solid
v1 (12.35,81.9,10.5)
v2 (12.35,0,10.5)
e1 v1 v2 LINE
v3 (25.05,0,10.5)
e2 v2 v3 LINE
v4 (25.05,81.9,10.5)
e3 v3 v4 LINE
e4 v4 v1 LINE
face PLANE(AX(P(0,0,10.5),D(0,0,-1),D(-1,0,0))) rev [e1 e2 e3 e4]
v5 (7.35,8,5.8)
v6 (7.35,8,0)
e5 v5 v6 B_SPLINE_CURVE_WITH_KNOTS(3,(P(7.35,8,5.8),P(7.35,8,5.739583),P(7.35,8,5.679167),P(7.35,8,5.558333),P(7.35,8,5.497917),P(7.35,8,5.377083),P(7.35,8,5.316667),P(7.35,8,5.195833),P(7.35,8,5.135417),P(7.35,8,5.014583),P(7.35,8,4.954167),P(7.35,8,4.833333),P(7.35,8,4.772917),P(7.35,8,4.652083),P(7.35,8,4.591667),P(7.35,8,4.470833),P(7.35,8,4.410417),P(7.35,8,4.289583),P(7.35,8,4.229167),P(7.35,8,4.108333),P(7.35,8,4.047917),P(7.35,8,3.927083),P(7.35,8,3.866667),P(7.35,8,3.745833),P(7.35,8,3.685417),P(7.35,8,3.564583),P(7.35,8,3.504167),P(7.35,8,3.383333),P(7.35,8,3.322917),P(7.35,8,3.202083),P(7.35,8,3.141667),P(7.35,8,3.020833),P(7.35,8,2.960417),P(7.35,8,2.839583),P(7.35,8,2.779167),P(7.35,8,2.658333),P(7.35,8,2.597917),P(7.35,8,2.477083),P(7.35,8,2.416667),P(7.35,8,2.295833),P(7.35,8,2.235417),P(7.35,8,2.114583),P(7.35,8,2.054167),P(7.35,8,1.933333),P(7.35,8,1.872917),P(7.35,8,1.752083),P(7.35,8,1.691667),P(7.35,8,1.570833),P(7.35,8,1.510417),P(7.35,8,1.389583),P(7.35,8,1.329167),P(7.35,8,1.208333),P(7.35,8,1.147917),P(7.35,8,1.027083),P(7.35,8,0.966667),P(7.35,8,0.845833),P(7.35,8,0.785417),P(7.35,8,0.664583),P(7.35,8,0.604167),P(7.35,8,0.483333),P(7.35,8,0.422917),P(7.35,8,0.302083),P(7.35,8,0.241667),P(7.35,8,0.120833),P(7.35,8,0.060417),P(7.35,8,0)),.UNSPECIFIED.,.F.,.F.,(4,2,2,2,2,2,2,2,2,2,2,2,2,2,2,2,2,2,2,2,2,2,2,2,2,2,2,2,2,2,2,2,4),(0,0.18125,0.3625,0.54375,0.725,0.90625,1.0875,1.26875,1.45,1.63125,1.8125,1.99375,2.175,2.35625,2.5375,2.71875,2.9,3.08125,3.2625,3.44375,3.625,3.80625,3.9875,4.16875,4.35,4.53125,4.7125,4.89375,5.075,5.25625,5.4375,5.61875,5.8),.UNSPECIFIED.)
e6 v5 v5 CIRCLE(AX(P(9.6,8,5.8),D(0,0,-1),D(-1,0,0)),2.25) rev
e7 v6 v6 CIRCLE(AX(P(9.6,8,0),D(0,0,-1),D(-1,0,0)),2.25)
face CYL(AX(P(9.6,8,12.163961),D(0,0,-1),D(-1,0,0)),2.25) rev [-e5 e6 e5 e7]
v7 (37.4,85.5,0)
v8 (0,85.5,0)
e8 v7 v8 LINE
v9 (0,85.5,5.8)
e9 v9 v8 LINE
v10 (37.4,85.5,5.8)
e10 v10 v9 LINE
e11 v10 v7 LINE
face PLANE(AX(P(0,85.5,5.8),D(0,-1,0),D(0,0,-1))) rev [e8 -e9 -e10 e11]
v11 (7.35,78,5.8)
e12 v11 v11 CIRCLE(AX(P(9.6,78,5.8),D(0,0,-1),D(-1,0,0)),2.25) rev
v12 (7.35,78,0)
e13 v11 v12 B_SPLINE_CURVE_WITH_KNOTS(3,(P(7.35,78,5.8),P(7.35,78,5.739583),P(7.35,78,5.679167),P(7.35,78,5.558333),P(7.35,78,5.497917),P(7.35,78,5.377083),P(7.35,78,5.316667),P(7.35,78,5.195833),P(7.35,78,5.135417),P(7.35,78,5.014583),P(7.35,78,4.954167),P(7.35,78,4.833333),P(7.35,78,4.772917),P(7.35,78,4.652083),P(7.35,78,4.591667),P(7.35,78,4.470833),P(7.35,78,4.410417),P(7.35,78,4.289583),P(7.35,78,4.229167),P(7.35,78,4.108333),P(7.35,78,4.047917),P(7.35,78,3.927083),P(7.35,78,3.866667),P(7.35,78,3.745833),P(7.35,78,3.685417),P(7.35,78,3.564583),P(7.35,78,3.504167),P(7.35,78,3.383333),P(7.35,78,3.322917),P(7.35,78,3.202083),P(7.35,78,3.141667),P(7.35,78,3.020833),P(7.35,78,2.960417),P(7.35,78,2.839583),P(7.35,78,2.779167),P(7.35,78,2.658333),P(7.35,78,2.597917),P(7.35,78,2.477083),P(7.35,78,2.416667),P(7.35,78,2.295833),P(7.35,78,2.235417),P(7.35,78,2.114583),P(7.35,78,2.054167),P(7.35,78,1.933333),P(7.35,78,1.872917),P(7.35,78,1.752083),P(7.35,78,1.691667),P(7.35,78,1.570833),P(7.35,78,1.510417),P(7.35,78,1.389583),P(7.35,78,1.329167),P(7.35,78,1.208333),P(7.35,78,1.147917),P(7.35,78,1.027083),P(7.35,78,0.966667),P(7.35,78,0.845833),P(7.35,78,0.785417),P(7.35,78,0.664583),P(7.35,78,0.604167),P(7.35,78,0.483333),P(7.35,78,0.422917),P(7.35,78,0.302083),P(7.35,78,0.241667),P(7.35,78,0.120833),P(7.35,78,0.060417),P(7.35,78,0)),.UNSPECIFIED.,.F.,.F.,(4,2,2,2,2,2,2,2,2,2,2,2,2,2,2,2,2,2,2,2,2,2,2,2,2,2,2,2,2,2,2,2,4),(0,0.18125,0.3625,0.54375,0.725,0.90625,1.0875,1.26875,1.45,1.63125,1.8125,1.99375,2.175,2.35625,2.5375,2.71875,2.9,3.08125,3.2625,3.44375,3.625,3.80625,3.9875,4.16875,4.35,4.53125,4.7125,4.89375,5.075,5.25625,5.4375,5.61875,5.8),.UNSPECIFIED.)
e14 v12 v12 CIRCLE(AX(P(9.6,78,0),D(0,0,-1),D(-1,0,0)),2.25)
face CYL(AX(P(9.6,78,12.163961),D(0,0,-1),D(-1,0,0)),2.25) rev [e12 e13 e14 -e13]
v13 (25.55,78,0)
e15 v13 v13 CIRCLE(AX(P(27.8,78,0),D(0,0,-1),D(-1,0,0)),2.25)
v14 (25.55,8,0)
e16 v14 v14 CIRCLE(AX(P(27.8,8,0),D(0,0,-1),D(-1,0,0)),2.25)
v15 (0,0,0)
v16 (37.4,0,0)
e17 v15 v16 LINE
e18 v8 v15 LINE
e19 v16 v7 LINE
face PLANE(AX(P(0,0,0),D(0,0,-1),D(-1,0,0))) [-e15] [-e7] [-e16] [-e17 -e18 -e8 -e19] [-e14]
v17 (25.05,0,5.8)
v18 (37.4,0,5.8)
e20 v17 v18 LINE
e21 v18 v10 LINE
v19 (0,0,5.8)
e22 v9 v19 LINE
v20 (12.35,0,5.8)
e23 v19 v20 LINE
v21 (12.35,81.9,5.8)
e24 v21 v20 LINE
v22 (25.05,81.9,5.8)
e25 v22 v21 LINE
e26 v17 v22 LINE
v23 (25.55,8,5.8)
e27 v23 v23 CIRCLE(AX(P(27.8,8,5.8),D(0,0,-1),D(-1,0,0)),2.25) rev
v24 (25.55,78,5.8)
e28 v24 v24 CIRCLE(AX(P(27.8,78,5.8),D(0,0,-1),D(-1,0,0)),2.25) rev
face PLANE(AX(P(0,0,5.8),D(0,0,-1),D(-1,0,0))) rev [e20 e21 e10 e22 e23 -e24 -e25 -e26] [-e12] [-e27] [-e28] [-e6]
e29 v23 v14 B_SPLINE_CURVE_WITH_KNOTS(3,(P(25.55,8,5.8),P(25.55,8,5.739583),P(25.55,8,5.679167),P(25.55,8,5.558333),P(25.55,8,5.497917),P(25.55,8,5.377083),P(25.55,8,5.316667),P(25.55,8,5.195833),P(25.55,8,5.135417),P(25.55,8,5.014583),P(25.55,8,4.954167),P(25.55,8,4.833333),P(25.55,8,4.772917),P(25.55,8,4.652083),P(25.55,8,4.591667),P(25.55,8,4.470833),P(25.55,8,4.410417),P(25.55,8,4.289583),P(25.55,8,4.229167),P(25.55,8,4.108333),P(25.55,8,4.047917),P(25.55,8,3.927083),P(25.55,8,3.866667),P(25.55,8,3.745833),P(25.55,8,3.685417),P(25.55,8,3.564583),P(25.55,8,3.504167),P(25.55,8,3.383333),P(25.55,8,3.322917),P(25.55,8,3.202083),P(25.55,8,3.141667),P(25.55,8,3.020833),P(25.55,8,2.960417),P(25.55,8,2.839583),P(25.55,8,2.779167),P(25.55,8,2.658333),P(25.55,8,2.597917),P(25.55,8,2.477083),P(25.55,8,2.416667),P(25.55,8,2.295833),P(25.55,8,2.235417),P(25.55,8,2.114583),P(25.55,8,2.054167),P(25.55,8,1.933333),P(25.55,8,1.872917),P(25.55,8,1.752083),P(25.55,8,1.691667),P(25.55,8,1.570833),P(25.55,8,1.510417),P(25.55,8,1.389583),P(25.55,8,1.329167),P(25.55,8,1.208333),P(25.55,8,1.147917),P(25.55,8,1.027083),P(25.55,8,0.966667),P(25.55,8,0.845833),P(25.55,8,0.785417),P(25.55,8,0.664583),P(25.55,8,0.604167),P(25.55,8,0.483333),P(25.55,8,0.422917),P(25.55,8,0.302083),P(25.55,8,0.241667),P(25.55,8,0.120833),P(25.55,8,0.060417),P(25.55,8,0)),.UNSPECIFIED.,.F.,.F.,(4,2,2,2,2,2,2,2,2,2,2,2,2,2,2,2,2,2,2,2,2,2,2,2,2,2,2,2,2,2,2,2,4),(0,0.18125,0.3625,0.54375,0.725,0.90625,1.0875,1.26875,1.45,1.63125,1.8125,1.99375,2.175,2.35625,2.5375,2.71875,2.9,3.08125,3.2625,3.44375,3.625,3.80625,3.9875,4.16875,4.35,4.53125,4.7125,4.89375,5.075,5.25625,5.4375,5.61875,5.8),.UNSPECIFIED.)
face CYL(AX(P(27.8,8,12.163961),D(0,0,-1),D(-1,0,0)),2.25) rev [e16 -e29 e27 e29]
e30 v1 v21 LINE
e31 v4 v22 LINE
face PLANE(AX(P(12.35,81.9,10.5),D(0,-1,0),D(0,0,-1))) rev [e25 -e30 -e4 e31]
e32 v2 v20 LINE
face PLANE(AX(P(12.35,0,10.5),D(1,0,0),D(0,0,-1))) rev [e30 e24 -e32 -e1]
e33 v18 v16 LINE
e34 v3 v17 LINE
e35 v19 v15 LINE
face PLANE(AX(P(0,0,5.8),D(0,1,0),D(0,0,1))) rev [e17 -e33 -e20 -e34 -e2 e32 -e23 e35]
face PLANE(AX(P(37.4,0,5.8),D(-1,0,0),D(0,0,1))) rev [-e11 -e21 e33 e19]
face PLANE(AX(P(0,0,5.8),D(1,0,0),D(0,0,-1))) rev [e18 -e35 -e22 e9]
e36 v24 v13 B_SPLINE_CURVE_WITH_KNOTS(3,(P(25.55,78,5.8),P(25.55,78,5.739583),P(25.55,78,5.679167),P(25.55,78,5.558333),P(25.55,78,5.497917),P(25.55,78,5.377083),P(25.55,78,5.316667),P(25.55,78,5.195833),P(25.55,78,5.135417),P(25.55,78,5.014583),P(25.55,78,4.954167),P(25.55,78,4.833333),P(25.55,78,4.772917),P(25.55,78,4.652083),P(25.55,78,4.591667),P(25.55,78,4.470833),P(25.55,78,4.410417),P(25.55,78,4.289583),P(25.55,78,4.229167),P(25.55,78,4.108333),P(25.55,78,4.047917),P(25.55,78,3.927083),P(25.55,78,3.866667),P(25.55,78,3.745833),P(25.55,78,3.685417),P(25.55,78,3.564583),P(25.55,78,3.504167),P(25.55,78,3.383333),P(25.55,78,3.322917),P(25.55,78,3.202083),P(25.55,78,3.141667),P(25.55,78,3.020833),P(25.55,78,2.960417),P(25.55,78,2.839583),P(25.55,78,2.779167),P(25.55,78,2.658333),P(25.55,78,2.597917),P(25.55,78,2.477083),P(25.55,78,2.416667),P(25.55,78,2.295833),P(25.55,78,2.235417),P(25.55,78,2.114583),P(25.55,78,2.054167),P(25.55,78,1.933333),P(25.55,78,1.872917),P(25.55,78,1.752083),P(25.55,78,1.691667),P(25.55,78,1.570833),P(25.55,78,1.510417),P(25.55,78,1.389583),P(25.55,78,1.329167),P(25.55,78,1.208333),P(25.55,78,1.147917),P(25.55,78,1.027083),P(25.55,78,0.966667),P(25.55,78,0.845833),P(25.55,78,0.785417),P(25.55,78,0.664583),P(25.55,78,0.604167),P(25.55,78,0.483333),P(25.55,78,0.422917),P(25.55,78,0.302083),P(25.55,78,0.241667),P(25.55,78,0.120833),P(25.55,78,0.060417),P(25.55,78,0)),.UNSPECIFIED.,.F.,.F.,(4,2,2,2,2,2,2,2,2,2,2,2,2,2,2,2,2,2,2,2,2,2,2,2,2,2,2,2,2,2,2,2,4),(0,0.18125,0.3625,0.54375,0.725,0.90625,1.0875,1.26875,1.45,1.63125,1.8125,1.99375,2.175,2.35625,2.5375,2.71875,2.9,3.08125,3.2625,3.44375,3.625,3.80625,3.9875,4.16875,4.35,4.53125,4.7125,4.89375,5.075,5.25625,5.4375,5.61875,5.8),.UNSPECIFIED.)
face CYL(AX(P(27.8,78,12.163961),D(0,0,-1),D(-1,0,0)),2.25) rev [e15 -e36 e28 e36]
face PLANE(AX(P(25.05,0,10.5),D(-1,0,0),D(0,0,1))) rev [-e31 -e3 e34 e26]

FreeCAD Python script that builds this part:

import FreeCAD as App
import Part
import Sketcher
from FreeCAD import Vector
Q = App.Units.Quantity


def add_polygon(sketch, points):
    """Adds a closed chain of lines whose ends are joined by coincident constraints."""
    first, n = sketch.GeometryCount, len(points)
    for a, b in zip(points, points[1:] + points[:1]):
        sketch.addGeometry(Part.LineSegment(App.Vector(*a, 0), App.Vector(*b, 0)), False)
    for i in range(n):
        sketch.addConstraint(Sketcher.Constraint("Coincident", first + i, 2, first + (i + 1) % n, 1))

doc = App.newDocument("Part")
params = doc.addObject("Spreadsheet::Sheet", "Params")
for row, (alias, value) in enumerate([
    ("sketch1_width", "37.4 mm"),
    ("sketch1_height", "85.5 mm"),
    ("pad1_length", "5.8 mm"),
    ("sketch2_width", "12.7 mm"),
    ("sketch2_height", "81.9 mm"),
    ("pad2_length", "4.7 mm"),
    ("sketch3_diameter", "4.5 mm"),
    ("pocket1_length", "5.8 mm"),
], start=1):
    params.set(f"A{row}", alias)
    params.set(f"B{row}", "=" + value)
    params.setAlias(f"B{row}", alias)

body = doc.addObject("PartDesign::Body", "Body")

# Sketch on XY plane
sketch1 = body.newObject("Sketcher::SketchObject", "Sketch")
sketch1.AttachmentSupport = (doc.getObject("XY_Plane"), [""])
sketch1.MapMode = "FlatFace"
add_polygon(sketch1, [(0, 86), (0, 0), (37, 0), (37, 86)])  # lines 0-3
sketch1.addConstraint(Sketcher.Constraint("Vertical", 0))
sketch1.addConstraint(Sketcher.Constraint("Horizontal", 1))
sketch1.addConstraint(Sketcher.Constraint("Vertical", 2))
sketch1.addConstraint(Sketcher.Constraint("Horizontal", 3))
sketch1.addConstraint(Sketcher.Constraint("Coincident", 0, 2, -1, 1))
sketch1.addConstraint(Sketcher.Constraint("DistanceX", 1, 1, 1, 2, Q("37.4 mm")))
sketch1.addConstraint(Sketcher.Constraint("DistanceY", 0, 2, 0, 1, Q("85.5 mm")))
sketch1.setExpression("Constraints[9]", "Params.sketch1_width")
sketch1.setExpression("Constraints[10]", "Params.sketch1_height")
pad1 = body.newObject("PartDesign::Pad", "Pad")
pad1.Profile = sketch1
pad1.setExpression("Length", "Params.pad1_length")

# Sketch on XY plane
sketch2 = body.newObject("Sketcher::SketchObject", "Sketch001")
sketch2.AttachmentSupport = (doc.getObject("XY_Plane"), [""])
sketch2.MapMode = "FlatFace"
sketch2.AttachmentOffset = App.Placement(Vector(0, 0, 5.8), App.Rotation())
add_polygon(sketch2, [(12, 82), (12, 0), (25, 0), (25, 82)])  # lines 0-3
sketch2.addConstraint(Sketcher.Constraint("Vertical", 0))
sketch2.addConstraint(Sketcher.Constraint("Horizontal", 1))
sketch2.addConstraint(Sketcher.Constraint("Vertical", 2))
sketch2.addConstraint(Sketcher.Constraint("Horizontal", 3))
sketch2.addConstraint(Sketcher.Constraint("PointOnObject", 0, 2, -1))
sketch2.addConstraint(Sketcher.Constraint("DistanceX", 1, 1, 1, 2, Q("12.7 mm")))
sketch2.addConstraint(Sketcher.Constraint("DistanceY", 0, 2, 0, 1, Q("81.9 mm")))
sketch2.addConstraint(Sketcher.Constraint("DistanceX", -1, 1, 0, 2, Q("12.35 mm")))
sketch2.setExpression("Constraints[9]", "Params.sketch2_width")
sketch2.setExpression("Constraints[10]", "Params.sketch2_height")
pad2 = body.newObject("PartDesign::Pad", "Pad001")
pad2.Profile = sketch2
pad2.setExpression("Length", "Params.pad2_length")

# Sketch on XY plane
sketch3 = body.newObject("Sketcher::SketchObject", "Sketch002")
sketch3.AttachmentSupport = (doc.getObject("XY_Plane"), [""])
sketch3.MapMode = "FlatFace"
sketch3.addGeometry(Part.Circle(Vector(27.8, 78, 0), Vector(0, 0, 1), 2.2), False)
sketch3.addGeometry(Part.Circle(Vector(9.6, 78, 0), Vector(0, 0, 1), 2.2), False)
sketch3.addGeometry(Part.Circle(Vector(9.6, 8, 0), Vector(0, 0, 1), 2.2), False)
sketch3.addGeometry(Part.Circle(Vector(27.8, 8, 0), Vector(0, 0, 1), 2.2), False)
sketch3.addConstraint(Sketcher.Constraint("Equal", 0, 1))
sketch3.addConstraint(Sketcher.Constraint("Equal", 1, 2))
sketch3.addConstraint(Sketcher.Constraint("Equal", 2, 3))
sketch3.addConstraint(Sketcher.Constraint("Horizontal", 0, 3, 1, 3))
sketch3.addConstraint(Sketcher.Constraint("Horizontal", 2, 3, 3, 3))
sketch3.addConstraint(Sketcher.Constraint("Vertical", 1, 3, 2, 3))
sketch3.addConstraint(Sketcher.Constraint("Vertical", 0, 3, 3, 3))
sketch3.addConstraint(Sketcher.Constraint("Diameter", 0, Q("4.5 mm")))
sketch3.addConstraint(Sketcher.Constraint("DistanceY", -1, 1, 0, 3, Q("78 mm")))
sketch3.addConstraint(Sketcher.Constraint("DistanceY", -1, 1, 2, 3, Q("8 mm")))
sketch3.addConstraint(Sketcher.Constraint("DistanceX", -1, 1, 0, 3, Q("27.8 mm")))
sketch3.addConstraint(Sketcher.Constraint("DistanceX", -1, 1, 1, 3, Q("9.6 mm")))
sketch3.setExpression("Constraints[7]", "Params.sketch3_diameter")
pocket1 = body.newObject("PartDesign::Pocket", "Pocket")
pocket1.Profile = sketch3
pocket1.setExpression("Length", "Params.pocket1_length")
pocket1.Reversed = True

doc.recompute()
